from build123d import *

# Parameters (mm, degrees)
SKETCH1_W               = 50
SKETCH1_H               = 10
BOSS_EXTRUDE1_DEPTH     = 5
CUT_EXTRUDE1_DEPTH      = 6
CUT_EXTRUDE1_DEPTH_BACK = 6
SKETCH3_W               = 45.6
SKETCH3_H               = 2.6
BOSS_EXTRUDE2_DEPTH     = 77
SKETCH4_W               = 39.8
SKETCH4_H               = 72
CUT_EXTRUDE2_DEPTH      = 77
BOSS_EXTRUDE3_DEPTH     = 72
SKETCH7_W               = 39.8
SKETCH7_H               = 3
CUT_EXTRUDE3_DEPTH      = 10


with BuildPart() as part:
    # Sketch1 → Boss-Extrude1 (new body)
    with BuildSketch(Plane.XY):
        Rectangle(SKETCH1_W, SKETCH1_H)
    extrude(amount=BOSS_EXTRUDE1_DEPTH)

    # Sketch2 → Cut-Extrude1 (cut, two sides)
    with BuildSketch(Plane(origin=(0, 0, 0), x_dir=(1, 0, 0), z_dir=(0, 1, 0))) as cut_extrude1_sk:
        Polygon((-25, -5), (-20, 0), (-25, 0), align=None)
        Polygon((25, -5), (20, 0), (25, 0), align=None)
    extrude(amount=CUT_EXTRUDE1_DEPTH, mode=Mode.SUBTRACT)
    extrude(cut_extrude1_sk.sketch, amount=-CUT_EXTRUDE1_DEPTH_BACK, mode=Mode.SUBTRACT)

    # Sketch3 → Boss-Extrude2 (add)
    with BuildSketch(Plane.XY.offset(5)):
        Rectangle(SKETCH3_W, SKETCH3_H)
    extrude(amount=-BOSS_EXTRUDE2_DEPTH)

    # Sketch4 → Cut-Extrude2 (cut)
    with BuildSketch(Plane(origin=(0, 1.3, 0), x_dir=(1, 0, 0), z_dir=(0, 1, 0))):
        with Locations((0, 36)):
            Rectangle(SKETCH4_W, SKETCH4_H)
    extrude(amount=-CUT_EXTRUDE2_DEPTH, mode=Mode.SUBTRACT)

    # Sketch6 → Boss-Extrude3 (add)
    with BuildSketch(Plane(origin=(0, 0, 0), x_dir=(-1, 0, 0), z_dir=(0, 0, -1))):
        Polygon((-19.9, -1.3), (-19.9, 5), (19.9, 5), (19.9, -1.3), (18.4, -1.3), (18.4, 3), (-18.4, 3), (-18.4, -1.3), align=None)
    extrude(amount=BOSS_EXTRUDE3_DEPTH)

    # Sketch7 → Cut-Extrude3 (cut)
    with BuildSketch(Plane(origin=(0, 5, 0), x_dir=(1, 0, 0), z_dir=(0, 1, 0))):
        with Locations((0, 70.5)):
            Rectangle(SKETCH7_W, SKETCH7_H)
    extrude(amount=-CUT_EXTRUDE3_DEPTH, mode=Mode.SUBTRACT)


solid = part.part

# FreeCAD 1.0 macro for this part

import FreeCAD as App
import Part
import Sketcher
from FreeCAD import Vector

doc = App.newDocument("Part")
body = doc.addObject("PartDesign::Body", "Body")

sketch1 = body.newObject("Sketcher::SketchObject", "Sketch")
sketch1.AttachmentSupport = (doc.getObject("XY_Plane"), [""])
sketch1.MapMode = "FlatFace"
sketch1.addGeometry([
    Part.LineSegment(Vector(-25, 5, 0), Vector(-25, -5, 0)),
    Part.LineSegment(Vector(-25, -5, 0), Vector(25, -5, 0)),
    Part.LineSegment(Vector(25, -5, 0), Vector(25, 5, 0)),
    Part.LineSegment(Vector(25, 5, 0), Vector(-25, 5, 0)),
], False)
sketch1.addConstraint([
    Sketcher.Constraint("Coincident", 0, 2, 1, 1),
    Sketcher.Constraint("Coincident", 1, 2, 2, 1),
    Sketcher.Constraint("Coincident", 2, 2, 3, 1),
    Sketcher.Constraint("Coincident", 3, 2, 0, 1),
    Sketcher.Constraint("Vertical", 0),
    Sketcher.Constraint("Horizontal", 1),
    Sketcher.Constraint("Vertical", 2),
    Sketcher.Constraint("Horizontal", 3),
    Sketcher.Constraint("Symmetric", 0, 2, 2, 2, -1, 1),
    Sketcher.Constraint("DistanceX", 1, 1, 1, 2, 50.0),
    Sketcher.Constraint("DistanceY", 0, 2, 0, 1, 10.0),
])
pad1 = body.newObject("PartDesign::Pad", "Pad")
pad1.Profile = sketch1
pad1.Length = 5

sketch2 = body.newObject("Sketcher::SketchObject", "Sketch001")
sketch2.AttachmentSupport = (doc.getObject("XZ_Plane"), [""])
sketch2.MapMode = "FlatFace"
sketch2.addGeometry([
    Part.LineSegment(Vector(-25, 5, 0), Vector(-20, 0, 0)),
    Part.LineSegment(Vector(-20, 0, 0), Vector(-25, 0, 0)),
    Part.LineSegment(Vector(-25, 0, 0), Vector(-25, 5, 0)),
    Part.LineSegment(Vector(20, 0, 0), Vector(25, 5, 0)),
    Part.LineSegment(Vector(25, 5, 0), Vector(25, 0, 0)),
    Part.LineSegment(Vector(25, 0, 0), Vector(20, 0, 0)),
], False)
sketch2.addConstraint([
    Sketcher.Constraint("Coincident", 0, 2, 1, 1),
    Sketcher.Constraint("Coincident", 1, 2, 2, 1),
    Sketcher.Constraint("Coincident", 2, 2, 0, 1),
    Sketcher.Constraint("Coincident", 3, 2, 4, 1),
    Sketcher.Constraint("Coincident", 4, 2, 5, 1),
    Sketcher.Constraint("Coincident", 5, 2, 3, 1),
    Sketcher.Constraint("Horizontal", 1),
    Sketcher.Constraint("Vertical", 2),
    Sketcher.Constraint("Vertical", 4),
    Sketcher.Constraint("Horizontal", 5),
    Sketcher.Constraint("Symmetric", 1, 2, 4, 2, -1, 1),
    Sketcher.Constraint("Symmetric", 0, 2, 5, 2, -2),
    Sketcher.Constraint("Perpendicular", 0, 3),
    Sketcher.Constraint("Horizontal", 2, 2, 3, 2),
    Sketcher.Constraint("DistanceX", 1, 2, 1, 1, 5.0),
    Sketcher.Constraint("DistanceX", 0, 2, -1, 1, 20.0),
])
pocket1 = body.newObject("PartDesign::Pocket", "Pocket")
pocket1.Profile = sketch2
pocket1.Type = "ThroughAll"
pocket1.Midplane = True

sketch3 = body.newObject("Sketcher::SketchObject", "Sketch002")
sketch3.AttachmentSupport = (doc.getObject("XY_Plane"), [""])
sketch3.MapMode = "FlatFace"
sketch3.AttachmentOffset = App.Placement(Vector(0, 0, 5), App.Rotation())
sketch3.addGeometry([
    Part.LineSegment(Vector(-22.8, 1.3, 0), Vector(-22.8, -1.3, 0)),
    Part.LineSegment(Vector(-22.8, -1.3, 0), Vector(22.8, -1.3, 0)),
    Part.LineSegment(Vector(22.8, -1.3, 0), Vector(22.8, 1.3, 0)),
    Part.LineSegment(Vector(22.8, 1.3, 0), Vector(-22.8, 1.3, 0)),
], False)
sketch3.addConstraint([
    Sketcher.Constraint("Coincident", 0, 2, 1, 1),
    Sketcher.Constraint("Coincident", 1, 2, 2, 1),
    Sketcher.Constraint("Coincident", 2, 2, 3, 1),
    Sketcher.Constraint("Coincident", 3, 2, 0, 1),
    Sketcher.Constraint("Vertical", 0),
    Sketcher.Constraint("Horizontal", 1),
    Sketcher.Constraint("Vertical", 2),
    Sketcher.Constraint("Horizontal", 3),
    Sketcher.Constraint("Symmetric", 0, 2, 2, 2, -1, 1),
    Sketcher.Constraint("DistanceX", 1, 1, 1, 2, 45.6),
    Sketcher.Constraint("DistanceY", 0, 2, 0, 1, 2.6),
])
pad2 = body.newObject("PartDesign::Pad", "Pad001")
pad2.Profile = sketch3
pad2.Length = 77
pad2.Reversed = True

sketch4 = body.newObject("Sketcher::SketchObject", "Sketch003")
sketch4.AttachmentSupport = (doc.getObject("XZ_Plane"), [""])
sketch4.MapMode = "FlatFace"
sketch4.AttachmentOffset = App.Placement(Vector(0, 0, -1.3), App.Rotation())
sketch4.addGeometry([
    Part.LineSegment(Vector(-20, -72, 0), Vector(-20, 0, 0)),
    Part.LineSegment(Vector(-20, 0, 0), Vector(20, 0, 0)),
    Part.LineSegment(Vector(20, 0, 0), Vector(20, -72, 0)),
    Part.LineSegment(Vector(20, -72, 0), Vector(-20, -72, 0)),
], False)
sketch4.addConstraint([
    Sketcher.Constraint("Coincident", 0, 2, 1, 1),
    Sketcher.Constraint("Coincident", 1, 2, 2, 1),
    Sketcher.Constraint("Coincident", 2, 2, 3, 1),
    Sketcher.Constraint("Coincident", 3, 2, 0, 1),
    Sketcher.Constraint("Vertical", 0),
    Sketcher.Constraint("Horizontal", 1),
    Sketcher.Constraint("Vertical", 2),
    Sketcher.Constraint("Horizontal", 3),
    Sketcher.Constraint("Symmetric", 0, 2, 1, 2, -1, 1),
    Sketcher.Constraint("DistanceY", 0, 1, 0, 2, 72.0),
    Sketcher.Constraint("DistanceX", 1, 1, 1, 2, 39.8),
])
pocket2 = body.newObject("PartDesign::Pocket", "Pocket001")
pocket2.Profile = sketch4
pocket2.Length = 77
pocket2.Reversed = True

sketch5 = body.newObject("Sketcher::SketchObject", "Sketch004")
sketch5.AttachmentSupport = (doc.getObject("XY_Plane"), [""])
sketch5.MapMode = "FlatFace"
sketch5.addGeometry([
    Part.LineSegment(Vector(19.9, 5, 0), Vector(19.9, -1.3, 0)),
    Part.LineSegment(Vector(19.9, -1.3, 0), Vector(18.4, -1.3, 0)),
    Part.LineSegment(Vector(18.4, -1.3, 0), Vector(18.4, 3, 0)),
    Part.LineSegment(Vector(18.4, 3, 0), Vector(-18.4, 3, 0)),
    Part.LineSegment(Vector(-18.4, 3, 0), Vector(-18.4, -1.3, 0)),
    Part.LineSegment(Vector(-18.4, -1.3, 0), Vector(-19.9, -1.3, 0)),
    Part.LineSegment(Vector(-19.9, -1.3, 0), Vector(-19.9, 5, 0)),
    Part.LineSegment(Vector(-19.9, 5, 0), Vector(19.9, 5, 0)),
], False)
sketch5.addConstraint([
    Sketcher.Constraint("Coincident", 0, 2, 1, 1),
    Sketcher.Constraint("Coincident", 1, 2, 2, 1),
    Sketcher.Constraint("Coincident", 2, 2, 3, 1),
    Sketcher.Constraint("Coincident", 3, 2, 4, 1),
    Sketcher.Constraint("Coincident", 4, 2, 5, 1),
    Sketcher.Constraint("Coincident", 5, 2, 6, 1),
    Sketcher.Constraint("Coincident", 6, 2, 7, 1),
    Sketcher.Constraint("Coincident", 7, 2, 0, 1),
    Sketcher.Constraint("Vertical", 0),
    Sketcher.Constraint("Horizontal", 1),
    Sketcher.Constraint("Vertical", 2),
    Sketcher.Constraint("Horizontal", 3),
    Sketcher.Constraint("Vertical", 4),
    Sketcher.Constraint("Horizontal", 5),
    Sketcher.Constraint("Vertical", 6),
    Sketcher.Constraint("Horizontal", 7),
    Sketcher.Constraint("Symmetric", 1, 2, 4, 2, -2),
    Sketcher.Constraint("Equal", 1, 5),
    Sketcher.Constraint("DistanceX", 1, 2, 1, 1, 1.5),
    Sketcher.Constraint("DistanceX", 3, 2, 3, 1, 36.8),
    Sketcher.Constraint("DistanceY", 0, 2, 0, 1, 6.3),
    Sketcher.Constraint("DistanceY", 2, 1, 2, 2, 4.3),
    Sketcher.Constraint("DistanceY", -1, 1, 2, 2, 3.0),
])
pad3 = body.newObject("PartDesign::Pad", "Pad002")
pad3.Profile = sketch5
pad3.Length = 72
pad3.Reversed = True

sketch6 = body.newObject("Sketcher::SketchObject", "Sketch005")
sketch6.AttachmentSupport = (doc.getObject("XZ_Plane"), [""])
sketch6.MapMode = "FlatFace"
sketch6.AttachmentOffset = App.Placement(Vector(0, 0, -5), App.Rotation())
sketch6.addGeometry([
    Part.LineSegment(Vector(-19.9, -72, 0), Vector(-19.9, -69, 0)),
    Part.LineSegment(Vector(-19.9, -69, 0), Vector(19.9, -69, 0)),
    Part.LineSegment(Vector(19.9, -69, 0), Vector(19.9, -72, 0)),
    Part.LineSegment(Vector(19.9, -72, 0), Vector(-19.9, -72, 0)),
], False)
sketch6.addConstraint([
    Sketcher.Constraint("Coincident", 0, 2, 1, 1),
    Sketcher.Constraint("Coincident", 1, 2, 2, 1),
    Sketcher.Constraint("Coincident", 2, 2, 3, 1),
    Sketcher.Constraint("Coincident", 3, 2, 0, 1),
    Sketcher.Constraint("Vertical", 0),
    Sketcher.Constraint("Horizontal", 1),
    Sketcher.Constraint("Vertical", 2),
    Sketcher.Constraint("Horizontal", 3),
    Sketcher.Constraint("DistanceY", 0, 1, 0, 2, 3.0),
    Sketcher.Constraint("DistanceX", 1, 1, 1, 2, 39.8),
    Sketcher.Constraint("DistanceY", 0, 2, -1, 1, 69.0),
    Sketcher.Constraint("DistanceX", 0, 2, -1, 1, 19.9),
])
pocket3 = body.newObject("PartDesign::Pocket", "Pocket002")
pocket3.Profile = sketch6
pocket3.Length = 10
pocket3.Reversed = True

doc.recompute()
